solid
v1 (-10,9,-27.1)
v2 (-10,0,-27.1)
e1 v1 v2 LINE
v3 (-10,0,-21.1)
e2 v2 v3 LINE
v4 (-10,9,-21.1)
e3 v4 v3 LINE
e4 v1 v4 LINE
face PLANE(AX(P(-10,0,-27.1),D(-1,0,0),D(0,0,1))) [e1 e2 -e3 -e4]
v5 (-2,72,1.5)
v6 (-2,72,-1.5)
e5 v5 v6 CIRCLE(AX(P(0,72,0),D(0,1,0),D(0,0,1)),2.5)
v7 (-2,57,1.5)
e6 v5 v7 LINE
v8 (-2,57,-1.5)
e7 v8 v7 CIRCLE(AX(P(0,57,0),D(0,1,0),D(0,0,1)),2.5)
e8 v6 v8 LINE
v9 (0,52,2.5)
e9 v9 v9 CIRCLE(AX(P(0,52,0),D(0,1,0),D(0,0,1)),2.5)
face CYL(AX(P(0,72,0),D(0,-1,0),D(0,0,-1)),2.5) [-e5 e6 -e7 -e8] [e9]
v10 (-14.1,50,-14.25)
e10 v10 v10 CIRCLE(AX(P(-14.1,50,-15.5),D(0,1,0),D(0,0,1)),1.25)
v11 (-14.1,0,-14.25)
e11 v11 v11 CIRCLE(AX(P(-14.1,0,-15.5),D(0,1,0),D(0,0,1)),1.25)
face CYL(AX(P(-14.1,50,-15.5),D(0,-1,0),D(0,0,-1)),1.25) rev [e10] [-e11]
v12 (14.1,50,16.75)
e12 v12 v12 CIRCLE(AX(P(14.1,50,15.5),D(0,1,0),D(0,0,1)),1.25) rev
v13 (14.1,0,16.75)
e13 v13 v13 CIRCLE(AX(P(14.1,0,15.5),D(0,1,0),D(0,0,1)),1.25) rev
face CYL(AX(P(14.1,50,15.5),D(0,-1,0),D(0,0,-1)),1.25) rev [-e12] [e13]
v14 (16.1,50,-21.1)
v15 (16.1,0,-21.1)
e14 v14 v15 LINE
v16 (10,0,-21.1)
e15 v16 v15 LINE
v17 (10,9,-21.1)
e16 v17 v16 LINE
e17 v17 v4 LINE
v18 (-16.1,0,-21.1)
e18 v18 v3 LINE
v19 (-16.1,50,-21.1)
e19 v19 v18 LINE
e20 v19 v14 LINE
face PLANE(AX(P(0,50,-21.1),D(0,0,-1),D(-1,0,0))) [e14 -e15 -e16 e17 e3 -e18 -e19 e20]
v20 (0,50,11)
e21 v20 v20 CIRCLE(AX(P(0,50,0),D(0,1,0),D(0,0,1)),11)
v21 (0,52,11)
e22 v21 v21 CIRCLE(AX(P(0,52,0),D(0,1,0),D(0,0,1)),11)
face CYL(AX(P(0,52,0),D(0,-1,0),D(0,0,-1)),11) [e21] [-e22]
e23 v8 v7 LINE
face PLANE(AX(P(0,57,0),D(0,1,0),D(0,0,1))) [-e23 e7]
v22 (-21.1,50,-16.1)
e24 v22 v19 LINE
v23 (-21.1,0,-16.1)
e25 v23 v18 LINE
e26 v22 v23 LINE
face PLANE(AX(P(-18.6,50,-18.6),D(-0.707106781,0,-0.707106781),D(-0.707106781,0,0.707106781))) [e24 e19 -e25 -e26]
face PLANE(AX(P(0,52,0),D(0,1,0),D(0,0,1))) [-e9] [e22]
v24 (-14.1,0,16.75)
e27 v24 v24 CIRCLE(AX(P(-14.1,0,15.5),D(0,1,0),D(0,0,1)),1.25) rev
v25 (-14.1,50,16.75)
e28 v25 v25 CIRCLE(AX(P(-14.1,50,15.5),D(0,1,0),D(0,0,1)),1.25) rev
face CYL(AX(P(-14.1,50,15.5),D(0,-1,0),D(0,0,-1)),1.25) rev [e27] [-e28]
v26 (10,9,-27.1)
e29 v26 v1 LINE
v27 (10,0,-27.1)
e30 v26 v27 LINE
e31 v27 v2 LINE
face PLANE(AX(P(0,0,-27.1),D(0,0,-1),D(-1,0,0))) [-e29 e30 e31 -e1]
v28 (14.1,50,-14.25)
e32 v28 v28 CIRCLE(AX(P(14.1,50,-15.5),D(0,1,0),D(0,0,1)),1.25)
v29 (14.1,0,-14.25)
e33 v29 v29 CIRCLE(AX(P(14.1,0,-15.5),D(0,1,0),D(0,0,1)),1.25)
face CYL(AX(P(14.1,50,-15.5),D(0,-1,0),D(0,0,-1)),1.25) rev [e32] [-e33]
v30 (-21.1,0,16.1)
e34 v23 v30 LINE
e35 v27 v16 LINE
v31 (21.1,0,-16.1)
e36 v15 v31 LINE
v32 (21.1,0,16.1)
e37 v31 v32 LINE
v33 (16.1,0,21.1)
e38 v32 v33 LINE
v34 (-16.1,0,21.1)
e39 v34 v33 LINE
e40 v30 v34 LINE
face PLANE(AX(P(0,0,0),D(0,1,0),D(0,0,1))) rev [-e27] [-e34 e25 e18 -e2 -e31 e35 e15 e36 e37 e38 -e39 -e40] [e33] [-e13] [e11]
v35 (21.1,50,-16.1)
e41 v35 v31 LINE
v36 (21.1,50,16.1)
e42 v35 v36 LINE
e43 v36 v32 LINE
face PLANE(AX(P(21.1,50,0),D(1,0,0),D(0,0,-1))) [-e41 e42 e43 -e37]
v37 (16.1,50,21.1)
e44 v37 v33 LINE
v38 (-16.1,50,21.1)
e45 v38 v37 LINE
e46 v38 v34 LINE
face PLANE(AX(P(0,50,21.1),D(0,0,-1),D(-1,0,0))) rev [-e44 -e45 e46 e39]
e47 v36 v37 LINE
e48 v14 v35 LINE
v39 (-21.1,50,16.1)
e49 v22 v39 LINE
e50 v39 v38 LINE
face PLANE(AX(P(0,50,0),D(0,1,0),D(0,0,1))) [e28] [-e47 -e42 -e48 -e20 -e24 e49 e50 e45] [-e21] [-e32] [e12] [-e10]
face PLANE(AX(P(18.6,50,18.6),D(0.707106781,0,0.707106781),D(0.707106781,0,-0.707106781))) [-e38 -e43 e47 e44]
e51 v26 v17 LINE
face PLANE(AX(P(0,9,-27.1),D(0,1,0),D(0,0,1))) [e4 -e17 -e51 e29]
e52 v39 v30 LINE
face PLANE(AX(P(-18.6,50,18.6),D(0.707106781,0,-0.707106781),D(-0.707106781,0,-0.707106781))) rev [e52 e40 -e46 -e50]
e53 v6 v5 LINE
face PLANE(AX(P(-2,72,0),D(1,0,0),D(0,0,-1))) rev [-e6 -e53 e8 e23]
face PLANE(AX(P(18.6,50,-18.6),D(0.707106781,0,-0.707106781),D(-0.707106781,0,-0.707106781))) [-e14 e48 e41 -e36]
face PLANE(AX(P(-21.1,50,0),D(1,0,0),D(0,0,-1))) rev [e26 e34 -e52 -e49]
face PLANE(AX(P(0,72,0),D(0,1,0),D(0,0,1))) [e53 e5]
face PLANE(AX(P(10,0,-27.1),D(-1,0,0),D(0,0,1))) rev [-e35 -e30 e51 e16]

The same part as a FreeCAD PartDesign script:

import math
import FreeCAD as App
import Part
import Sketcher
from FreeCAD import Vector
Q = App.Units.Quantity

doc = App.newDocument("Part")
body = doc.addObject("PartDesign::Body", "Body")

# Sketch on XZ plane
sketch1 = doc.addObject("Sketcher::SketchObject", "Sketch")
body.addObject(sketch1)
sketch1.AttachmentSupport = (doc.XZ_Plane, [""])
sketch1.MapMode = "FlatFace"
sketch1.addGeometry([
    Part.LineSegment(Vector(-16.1, 21.1, 0), Vector(16.1, 21.1, 0)),  # 0
    Part.LineSegment(Vector(16.1, 21.1, 0), Vector(21.1, 16.1, 0)),  # 1
    Part.LineSegment(Vector(21.1, 16.1, 0), Vector(21.1, -16.1, 0)),  # 2
    Part.LineSegment(Vector(21.1, -16.1, 0), Vector(16.1, -21.1, 0)),  # 3
    Part.LineSegment(Vector(16.1, -21.1, 0), Vector(-16.1, -21.1, 0)),  # 4
    Part.LineSegment(Vector(-16.1, -21.1, 0), Vector(-21.1, -16.1, 0)),  # 5
    Part.LineSegment(Vector(-21.1, -16.1, 0), Vector(-21.1, 16.1, 0)),  # 6
    Part.LineSegment(Vector(-21.1, 16.1, 0), Vector(-16.1, 21.1, 0)),  # 7
    Part.Circle(Vector(-14.1, 15.5, 0), Vector(0, 0, 1), 1.2),  # 8
    Part.Circle(Vector(14.1, 15.5, 0), Vector(0, 0, 1), 1.2),  # 9
    Part.Circle(Vector(-14.1, -15.5, 0), Vector(0, 0, 1), 1.2),  # 10
    Part.Circle(Vector(0, 0, 0), Vector(0, 0, 1), 11),  # 11
    Part.Circle(Vector(14.1, -15.5, 0), Vector(0, 0, 1), 1.2),  # 12
], False)
sketch1.addConstraint([
    Sketcher.Constraint("Coincident", 0, 2, 1, 1),
    Sketcher.Constraint("Coincident", 1, 2, 2, 1),
    Sketcher.Constraint("Coincident", 2, 2, 3, 1),
    Sketcher.Constraint("Coincident", 3, 2, 4, 1),
    Sketcher.Constraint("Coincident", 4, 2, 5, 1),
    Sketcher.Constraint("Coincident", 5, 2, 6, 1),
    Sketcher.Constraint("Coincident", 6, 2, 7, 1),
    Sketcher.Constraint("Coincident", 7, 2, 0, 1),
    Sketcher.Constraint("Horizontal", 0),
    Sketcher.Constraint("Vertical", 2),
    Sketcher.Constraint("Horizontal", 4),
    Sketcher.Constraint("Vertical", 6),
    Sketcher.Constraint("Coincident", 11, 3, -1, 1),
    Sketcher.Constraint("Equal", 8, 9),
    Sketcher.Constraint("Equal", 9, 10),
    Sketcher.Constraint("Equal", 10, 12),
    Sketcher.Constraint("Symmetric", 9, 3, 10, 3, -1, 1),
    Sketcher.Constraint("Symmetric", 8, 3, 12, 3, -1, 1),
    Sketcher.Constraint("Symmetric", 0, 2, 4, 2, -1, 1),
    Sketcher.Constraint("Symmetric", 1, 2, 5, 2, -1, 1),
    Sketcher.Constraint("Symmetric", 8, 3, 9, 3, -2),
    Sketcher.Constraint("Perpendicular", 1, 3),
    Sketcher.Constraint("Perpendicular", 5, 7),
    Sketcher.Constraint("Horizontal", 2, 2, 5, 2),
    Sketcher.Constraint("Horizontal", 1, 2, 6, 2),
    Sketcher.Constraint("Vertical", 0, 2, 3, 2),
    Sketcher.Constraint("Equal", 4, 2),
    Sketcher.Constraint("Diameter", 11, Q("22 mm")),
    Sketcher.Constraint("Diameter", 8, Q("2.5 mm")),
    Sketcher.Constraint("DistanceX", 0, 1, 0, 2, Q("32.2 mm")),
    Sketcher.Constraint("DistanceY", 10, 3, 8, 3, Q("31 mm")),
    Sketcher.Constraint("DistanceX", 9, 3, 0, 2, Q("2 mm")),
    Sketcher.Constraint("DistanceX", 9, 3, 1, 2, Q("7 mm")),
])
pad1 = doc.addObject("PartDesign::Pad", "Pad")
body.addObject(pad1)
pad1.Profile = sketch1
pad1.Length = 50
pad1.Reversed = True

# Sketch on XZ plane
sketch2 = doc.addObject("Sketcher::SketchObject", "Sketch001")
body.addObject(sketch2)
sketch2.AttachmentSupport = (doc.XZ_Plane, [""])
sketch2.MapMode = "FlatFace"
sketch2.addGeometry([
    Part.Circle(Vector(0, 0, 0), Vector(0, 0, 1), 11),
    Part.Circle(Vector(0, 0, 0), Vector(0, 0, 1), 2.5),
], False)
sketch2.addConstraint([
    Sketcher.Constraint("Coincident", 0, 3, -1, 1),
    Sketcher.Constraint("Coincident", 1, 3, -1, 1),
    Sketcher.Constraint("Diameter", 0, Q("22 mm")),
    Sketcher.Constraint("Diameter", 1, Q("5 mm")),
])
pad2 = doc.addObject("PartDesign::Pad", "Pad001")
body.addObject(pad2)
pad2.Profile = sketch2
pad2.Length = 52
pad2.Reversed = True

# Sketch on XZ plane
sketch3 = doc.addObject("Sketcher::SketchObject", "Sketch002")
body.addObject(sketch3)
sketch3.AttachmentSupport = (doc.XZ_Plane, [""])
sketch3.MapMode = "FlatFace"
sketch3.addGeometry([
    Part.ArcOfCircle(Part.Circle(Vector(0, 0, 0), Vector(0, 0, 1), 2.5), math.radians(-143), math.radians(0)),
    Part.LineSegment(Vector(-2, -1.5, 0), Vector(-2, 1.5, 0)),
    Part.ArcOfCircle(Part.Circle(Vector(0, 0, 0), Vector(0, 0, 1), 2.5), math.radians(0), math.radians(143)),
], False)
sketch3.addConstraint([
    Sketcher.Constraint("Coincident", 0, 1, 1, 1),
    Sketcher.Constraint("Coincident", 1, 2, 2, 2),
    Sketcher.Constraint("Tangent", 2, 1, 0, 2),
    Sketcher.Constraint("Vertical", 1),
    Sketcher.Constraint("Coincident", 0, 3, -1, 1),
    Sketcher.Constraint("Equal", 0, 2),
    Sketcher.Constraint("PointOnObject", 2, 1, -1),
    Sketcher.Constraint("Radius", 0, Q("2.5 mm")),
    Sketcher.Constraint("DistanceY", 1, 1, 1, 2, Q("3 mm")),
])
pad3 = doc.addObject("PartDesign::Pad", "Pad002")
body.addObject(pad3)
pad3.Profile = sketch3
pad3.Length = 72
pad3.Reversed = True

# Sketch on XZ plane
sketch4 = doc.addObject("Sketcher::SketchObject", "Sketch003")
body.addObject(sketch4)
sketch4.AttachmentSupport = (doc.XZ_Plane, [""])
sketch4.MapMode = "FlatFace"
sketch4.addGeometry([
    Part.ArcOfCircle(Part.Circle(Vector(0, 0, 0), Vector(0, 0, 1), 2.5), math.radians(-143), math.radians(0)),
    Part.ArcOfCircle(Part.Circle(Vector(0, 0, 0), Vector(0, 0, 1), 2.5), math.radians(143), math.radians(217)),
    Part.ArcOfCircle(Part.Circle(Vector(0, 0, 0), Vector(0, 0, 1), 2.5), math.radians(0), math.radians(143)),
], False)
sketch4.addConstraint([
    Sketcher.Constraint("Tangent", 0, 1, 1, 2),
    Sketcher.Constraint("Tangent", 1, 1, 2, 2),
    Sketcher.Constraint("Tangent", 2, 1, 0, 2),
    Sketcher.Constraint("Coincident", 0, 3, -1, 1),
    Sketcher.Constraint("PointOnObject", 2, 1, -1),
    Sketcher.Constraint("Vertical", 0, 1, 1, 1),
    Sketcher.Constraint("Radius", 0, Q("2.5 mm")),
    Sketcher.Constraint("DistanceX", 0, 1, -1, 1, Q("2 mm")),
])
pad4 = doc.addObject("PartDesign::Pad", "Pad003")
body.addObject(pad4)
pad4.Profile = sketch4
pad4.Length = 57
pad4.Reversed = True

# Sketch on XY plane
sketch5 = doc.addObject("Sketcher::SketchObject", "Sketch004")
body.addObject(sketch5)
sketch5.AttachmentSupport = (doc.XY_Plane, [""])
sketch5.MapMode = "FlatFace"
sketch5.AttachmentOffset = App.Placement(Vector(0, 0, -21.1), App.Rotation())
sketch5.addGeometry([
    Part.LineSegment(Vector(-10, 0, 0), Vector(-10, 9, 0)),
    Part.LineSegment(Vector(-10, 9, 0), Vector(10, 9, 0)),
    Part.LineSegment(Vector(10, 9, 0), Vector(10, 0, 0)),
    Part.LineSegment(Vector(10, 0, 0), Vector(-10, 0, 0)),
], False)
sketch5.addConstraint([
    Sketcher.Constraint("Coincident", 0, 2, 1, 1),
    Sketcher.Constraint("Coincident", 1, 2, 2, 1),
    Sketcher.Constraint("Coincident", 2, 2, 3, 1),
    Sketcher.Constraint("Coincident", 3, 2, 0, 1),
    Sketcher.Constraint("Vertical", 0),
    Sketcher.Constraint("Horizontal", 1),
    Sketcher.Constraint("Vertical", 2),
    Sketcher.Constraint("Horizontal", 3),
    Sketcher.Constraint("Symmetric", 2, 2, 3, 2, -1, 1),
    Sketcher.Constraint("DistanceX", 1, 1, 1, 2, Q("20 mm")),
    Sketcher.Constraint("DistanceY", 0, 1, 0, 2, Q("9 mm")),
])
pad5 = doc.addObject("PartDesign::Pad", "Pad004")
body.addObject(pad5)
pad5.Profile = sketch5
pad5.Length = 6
pad5.Reversed = True

doc.recompute()
